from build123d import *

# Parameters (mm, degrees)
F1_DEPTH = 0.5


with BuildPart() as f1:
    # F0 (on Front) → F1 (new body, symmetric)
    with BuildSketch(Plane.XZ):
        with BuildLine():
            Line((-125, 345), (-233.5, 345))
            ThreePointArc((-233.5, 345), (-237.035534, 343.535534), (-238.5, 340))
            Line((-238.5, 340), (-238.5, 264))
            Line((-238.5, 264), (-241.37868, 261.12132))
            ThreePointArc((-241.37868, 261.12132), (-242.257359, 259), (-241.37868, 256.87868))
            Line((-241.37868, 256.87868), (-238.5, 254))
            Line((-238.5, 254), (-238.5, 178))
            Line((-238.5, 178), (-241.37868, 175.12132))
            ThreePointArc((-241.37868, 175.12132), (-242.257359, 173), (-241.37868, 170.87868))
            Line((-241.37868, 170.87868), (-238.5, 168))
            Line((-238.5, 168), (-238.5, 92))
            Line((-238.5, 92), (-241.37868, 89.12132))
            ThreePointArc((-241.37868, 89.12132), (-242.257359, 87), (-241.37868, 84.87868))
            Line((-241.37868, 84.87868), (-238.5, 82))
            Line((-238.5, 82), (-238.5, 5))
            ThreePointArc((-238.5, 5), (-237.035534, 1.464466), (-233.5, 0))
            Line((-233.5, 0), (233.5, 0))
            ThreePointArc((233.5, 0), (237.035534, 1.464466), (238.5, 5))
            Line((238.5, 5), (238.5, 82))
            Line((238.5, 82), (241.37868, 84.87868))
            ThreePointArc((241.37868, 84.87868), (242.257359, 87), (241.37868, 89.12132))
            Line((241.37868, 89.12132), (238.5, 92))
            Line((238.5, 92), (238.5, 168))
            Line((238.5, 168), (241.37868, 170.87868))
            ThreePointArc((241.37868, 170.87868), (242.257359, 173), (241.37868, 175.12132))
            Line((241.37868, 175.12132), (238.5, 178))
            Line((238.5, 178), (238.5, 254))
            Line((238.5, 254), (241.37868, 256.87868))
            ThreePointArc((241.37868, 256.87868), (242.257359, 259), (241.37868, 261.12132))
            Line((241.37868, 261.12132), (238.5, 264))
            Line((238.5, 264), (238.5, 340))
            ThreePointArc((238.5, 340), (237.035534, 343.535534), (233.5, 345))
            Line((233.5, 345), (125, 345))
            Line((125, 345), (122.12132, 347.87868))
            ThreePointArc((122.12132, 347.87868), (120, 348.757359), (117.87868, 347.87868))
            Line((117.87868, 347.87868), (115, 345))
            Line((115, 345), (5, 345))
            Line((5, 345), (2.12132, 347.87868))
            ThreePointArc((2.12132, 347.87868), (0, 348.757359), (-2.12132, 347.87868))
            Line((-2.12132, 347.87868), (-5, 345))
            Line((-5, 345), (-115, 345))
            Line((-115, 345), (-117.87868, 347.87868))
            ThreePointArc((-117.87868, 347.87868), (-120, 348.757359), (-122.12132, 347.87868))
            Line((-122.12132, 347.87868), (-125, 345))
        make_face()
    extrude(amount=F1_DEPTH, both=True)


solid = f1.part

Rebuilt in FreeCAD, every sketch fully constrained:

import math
import FreeCAD as App
import Part
import Sketcher
from FreeCAD import Vector
Q = App.Units.Quantity

doc = App.newDocument("Part")
body = doc.addObject("PartDesign::Body", "Body")

# Sketch on XZ plane
sketch1 = body.newObject("Sketcher::SketchObject", "Sketch")
sketch1.AttachmentSupport = (doc.getObject("XZ_Plane"), [""])
sketch1.MapMode = "FlatFace"
sketch1.addGeometry([
    Part.LineSegment(Vector(-125, 345, 0), Vector(-233.5, 345, 0)),  # 0
    Part.ArcOfCircle(Part.Circle(Vector(-233.5, 340, 0), Vector(0, 0, 1), 5), math.radians(90), math.radians(180)),  # 1
    Part.LineSegment(Vector(-238.5, 340, 0), Vector(-238.5, 264, 0)),  # 2
    Part.LineSegment(Vector(-238.5, 264, 0), Vector(-241.4, 261.1, 0)),  # 3
    Part.ArcOfCircle(Part.Circle(Vector(-239.3, 259, 0), Vector(0, 0, 1), 3), math.radians(135), math.radians(225)),  # 4
    Part.LineSegment(Vector(-241.4, 256.9, 0), Vector(-238.5, 254, 0)),  # 5
    Part.LineSegment(Vector(-238.5, 254, 0), Vector(-238.5, 178, 0)),  # 6
    Part.LineSegment(Vector(-238.5, 178, 0), Vector(-241.4, 175.1, 0)),  # 7
    Part.ArcOfCircle(Part.Circle(Vector(-239.3, 173, 0), Vector(0, 0, 1), 3), math.radians(135), math.radians(225)),  # 8
    Part.LineSegment(Vector(-241.4, 170.9, 0), Vector(-238.5, 168, 0)),  # 9
    Part.LineSegment(Vector(-238.5, 168, 0), Vector(-238.5, 92, 0)),  # 10
    Part.LineSegment(Vector(-238.5, 92, 0), Vector(-241.4, 89.1, 0)),  # 11
    Part.ArcOfCircle(Part.Circle(Vector(-239.3, 87, 0), Vector(0, 0, 1), 3), math.radians(135), math.radians(225)),  # 12
    Part.LineSegment(Vector(-241.4, 84.9, 0), Vector(-238.5, 82, 0)),  # 13
    Part.LineSegment(Vector(-238.5, 82, 0), Vector(-238.5, 5, 0)),  # 14
    Part.ArcOfCircle(Part.Circle(Vector(-233.5, 5, 0), Vector(0, 0, 1), 5), math.radians(180), math.radians(270)),  # 15
    Part.LineSegment(Vector(-233.5, 0, 0), Vector(233.5, 0, 0)),  # 16
    Part.ArcOfCircle(Part.Circle(Vector(233.5, 5, 0), Vector(0, 0, 1), 5), math.radians(-90), math.radians(0)),  # 17
    Part.LineSegment(Vector(238.5, 5, 0), Vector(238.5, 82, 0)),  # 18
    Part.LineSegment(Vector(238.5, 82, 0), Vector(241.4, 84.9, 0)),  # 19
    Part.ArcOfCircle(Part.Circle(Vector(239.3, 87, 0), Vector(0, 0, 1), 3), math.radians(-45), math.radians(45)),  # 20
    Part.LineSegment(Vector(241.4, 89.1, 0), Vector(238.5, 92, 0)),  # 21
    Part.LineSegment(Vector(238.5, 92, 0), Vector(238.5, 168, 0)),  # 22
    Part.LineSegment(Vector(238.5, 168, 0), Vector(241.4, 170.9, 0)),  # 23
    Part.ArcOfCircle(Part.Circle(Vector(239.3, 173, 0), Vector(0, 0, 1), 3), math.radians(-45), math.radians(45)),  # 24
    Part.LineSegment(Vector(241.4, 175.1, 0), Vector(238.5, 178, 0)),  # 25
    Part.LineSegment(Vector(238.5, 178, 0), Vector(238.5, 254, 0)),  # 26
    Part.LineSegment(Vector(238.5, 254, 0), Vector(241.4, 256.9, 0)),  # 27
    Part.ArcOfCircle(Part.Circle(Vector(239.3, 259, 0), Vector(0, 0, 1), 3), math.radians(-45), math.radians(45)),  # 28
    Part.LineSegment(Vector(241.4, 261.1, 0), Vector(238.5, 264, 0)),  # 29
    Part.LineSegment(Vector(238.5, 264, 0), Vector(238.5, 340, 0)),  # 30
    Part.ArcOfCircle(Part.Circle(Vector(233.5, 340, 0), Vector(0, 0, 1), 5), math.radians(0), math.radians(90)),  # 31
    Part.LineSegment(Vector(233.5, 345, 0), Vector(125, 345, 0)),  # 32
    Part.LineSegment(Vector(125, 345, 0), Vector(122.1, 347.9, 0)),  # 33
    Part.ArcOfCircle(Part.Circle(Vector(120, 345.8, 0), Vector(0, 0, 1), 3), math.radians(45), math.radians(135)),  # 34
    Part.LineSegment(Vector(117.9, 347.9, 0), Vector(115, 345, 0)),  # 35
    Part.LineSegment(Vector(115, 345, 0), Vector(5, 345, 0)),  # 36
    Part.LineSegment(Vector(5, 345, 0), Vector(2.1, 347.9, 0)),  # 37
    Part.ArcOfCircle(Part.Circle(Vector(0, 345.8, 0), Vector(0, 0, 1), 3), math.radians(45), math.radians(135)),  # 38
    Part.LineSegment(Vector(-2.1, 347.9, 0), Vector(-5, 345, 0)),  # 39
    Part.LineSegment(Vector(-5, 345, 0), Vector(-115, 345, 0)),  # 40
    Part.LineSegment(Vector(-115, 345, 0), Vector(-117.9, 347.9, 0)),  # 41
    Part.ArcOfCircle(Part.Circle(Vector(-120, 345.8, 0), Vector(0, 0, 1), 3), math.radians(45), math.radians(135)),  # 42
    Part.LineSegment(Vector(-122.1, 347.9, 0), Vector(-125, 345, 0)),  # 43
], False)
sketch1.addConstraint([
    Sketcher.Constraint("Tangent", 0, 2, 1, 1),
    Sketcher.Constraint("Tangent", 1, 2, 2, 1),
    Sketcher.Constraint("Coincident", 2, 2, 3, 1),
    Sketcher.Constraint("Tangent", 3, 2, 4, 1),
    Sketcher.Constraint("Tangent", 4, 2, 5, 1),
    Sketcher.Constraint("Coincident", 5, 2, 6, 1),
    Sketcher.Constraint("Coincident", 6, 2, 7, 1),
    Sketcher.Constraint("Tangent", 7, 2, 8, 1),
    Sketcher.Constraint("Tangent", 8, 2, 9, 1),
    Sketcher.Constraint("Coincident", 9, 2, 10, 1),
    Sketcher.Constraint("Coincident", 10, 2, 11, 1),
    Sketcher.Constraint("Tangent", 11, 2, 12, 1),
    Sketcher.Constraint("Tangent", 12, 2, 13, 1),
    Sketcher.Constraint("Coincident", 13, 2, 14, 1),
    Sketcher.Constraint("Tangent", 14, 2, 15, 1),
    Sketcher.Constraint("Tangent", 15, 2, 16, 1),
    Sketcher.Constraint("Tangent", 16, 2, 17, 1),
    Sketcher.Constraint("Tangent", 17, 2, 18, 1),
    Sketcher.Constraint("Coincident", 18, 2, 19, 1),
    Sketcher.Constraint("Tangent", 19, 2, 20, 1),
    Sketcher.Constraint("Tangent", 20, 2, 21, 1),
    Sketcher.Constraint("Coincident", 21, 2, 22, 1),
    Sketcher.Constraint("Coincident", 22, 2, 23, 1),
    Sketcher.Constraint("Tangent", 23, 2, 24, 1),
    Sketcher.Constraint("Tangent", 24, 2, 25, 1),
    Sketcher.Constraint("Coincident", 25, 2, 26, 1),
    Sketcher.Constraint("Coincident", 26, 2, 27, 1),
    Sketcher.Constraint("Tangent", 27, 2, 28, 1),
    Sketcher.Constraint("Tangent", 28, 2, 29, 1),
    Sketcher.Constraint("Coincident", 29, 2, 30, 1),
    Sketcher.Constraint("Tangent", 30, 2, 31, 1),
    Sketcher.Constraint("Tangent", 31, 2, 32, 1),
    Sketcher.Constraint("Coincident", 32, 2, 33, 1),
    Sketcher.Constraint("Tangent", 33, 2, 34, 1),
    Sketcher.Constraint("Tangent", 34, 2, 35, 1),
    Sketcher.Constraint("Coincident", 35, 2, 36, 1),
    Sketcher.Constraint("Coincident", 36, 2, 37, 1),
    Sketcher.Constraint("Tangent", 37, 2, 38, 1),
    Sketcher.Constraint("Tangent", 38, 2, 39, 1),
    Sketcher.Constraint("Coincident", 39, 2, 40, 1),
    Sketcher.Constraint("Coincident", 40, 2, 41, 1),
    Sketcher.Constraint("Tangent", 41, 2, 42, 1),
    Sketcher.Constraint("Tangent", 42, 2, 43, 1),
    Sketcher.Constraint("Coincident", 43, 2, 0, 1),
    Sketcher.Constraint("Horizontal", 0),
    Sketcher.Constraint("Vertical", 2),
    Sketcher.Constraint("Vertical", 6),
    Sketcher.Constraint("Vertical", 10),
    Sketcher.Constraint("Vertical", 14),
    Sketcher.Constraint("Horizontal", 16),
    Sketcher.Constraint("Vertical", 18),
    Sketcher.Constraint("Vertical", 22),
    Sketcher.Constraint("Vertical", 26),
    Sketcher.Constraint("Vertical", 30),
    Sketcher.Constraint("Horizontal", 32),
    Sketcher.Constraint("Horizontal", 36),
    Sketcher.Constraint("Horizontal", 40),
    Sketcher.Constraint("Equal", 4, 8),
    Sketcher.Constraint("Equal", 8, 12),
    Sketcher.Constraint("Equal", 1, 15),
    Sketcher.Constraint("Equal", 15, 17),
    Sketcher.Constraint("Equal", 12, 20),
    Sketcher.Constraint("Equal", 20, 24),
    Sketcher.Constraint("Equal", 24, 28),
    Sketcher.Constraint("Equal", 17, 31),
    Sketcher.Constraint("Equal", 28, 34),
    Sketcher.Constraint("Equal", 34, 38),
    Sketcher.Constraint("Equal", 38, 42),
    Sketcher.Constraint("Symmetric", 15, 2, 16, 2, -1, 1),
    Sketcher.Constraint("Symmetric", 12, 3, 20, 3, -2),
    Sketcher.Constraint("Symmetric", 8, 3, 24, 3, -2),
    Sketcher.Constraint("Symmetric", 4, 3, 28, 3, -2),
    Sketcher.Constraint("Symmetric", 1, 3, 31, 3, -2),
    Sketcher.Constraint("Symmetric", 34, 3, 42, 3, -2),
    Sketcher.Constraint("Symmetric", 10, 2, 21, 2, -2),
    Sketcher.Constraint("Symmetric", 6, 2, 25, 2, -2),
    Sketcher.Constraint("Symmetric", 37, 2, 38, 2, -2),
    Sketcher.Constraint("Symmetric", 35, 2, 40, 2, -2),
    Sketcher.Constraint("Perpendicular", 3, 5),
    Sketcher.Constraint("Perpendicular", 5, 7),
    Sketcher.Constraint("Perpendicular", 7, 9),
    Sketcher.Constraint("Perpendicular", 9, 11),
    Sketcher.Constraint("Perpendicular", 11, 13),
    Sketcher.Constraint("Perpendicular", 13, 19),
    Sketcher.Constraint("Perpendicular", 19, 21),
    Sketcher.Constraint("Perpendicular", 21, 23),
    Sketcher.Constraint("Perpendicular", 25, 27),
    Sketcher.Constraint("Perpendicular", 27, 29),
    Sketcher.Constraint("Parallel", 29, 33),
    Sketcher.Constraint("Perpendicular", 33, 35),
    Sketcher.Constraint("Perpendicular", 35, 37),
    Sketcher.Constraint("Perpendicular", 41, 43),
    Sketcher.Constraint("Horizontal", 34, 3, 38, 3),
    Sketcher.Constraint("Horizontal", 32, 2, 35, 2),
    Sketcher.Constraint("Vertical", 4, 3, 8, 3),
    Sketcher.Constraint("Vertical", 8, 3, 12, 3),
    Sketcher.Constraint("Vertical", 1, 3, 15, 3),
    Sketcher.Constraint("Vertical", 2, 2, 5, 2),
    Sketcher.Constraint("Vertical", 6, 2, 9, 2),
    Sketcher.Constraint("Equal", 2, 6),
    Sketcher.Constraint("Equal", 6, 10),
    Sketcher.Constraint("Equal", 29, 33),
    Sketcher.Constraint("Radius", 1, Q("5 mm")),
    Sketcher.Constraint("Radius", 4, Q("3.000001 mm")),
    Sketcher.Constraint("DistanceX", 16, 1, 16, 2, Q("467 mm")),
    Sketcher.Constraint("DistanceX", 36, 2, 36, 1, Q("110 mm")),
    Sketcher.Constraint("DistanceY", 2, 2, 2, 1, Q("76 mm")),
    Sketcher.Constraint("DistanceY", 14, 2, 14, 1, Q("77 mm")),
    Sketcher.Constraint("DistanceX", 0, 2, 0, 1, Q("108.5 mm")),
])
pad1 = body.newObject("PartDesign::Pad", "Pad")
pad1.Profile = sketch1
pad1.Length = 1
pad1.Midplane = True

doc.recompute()
